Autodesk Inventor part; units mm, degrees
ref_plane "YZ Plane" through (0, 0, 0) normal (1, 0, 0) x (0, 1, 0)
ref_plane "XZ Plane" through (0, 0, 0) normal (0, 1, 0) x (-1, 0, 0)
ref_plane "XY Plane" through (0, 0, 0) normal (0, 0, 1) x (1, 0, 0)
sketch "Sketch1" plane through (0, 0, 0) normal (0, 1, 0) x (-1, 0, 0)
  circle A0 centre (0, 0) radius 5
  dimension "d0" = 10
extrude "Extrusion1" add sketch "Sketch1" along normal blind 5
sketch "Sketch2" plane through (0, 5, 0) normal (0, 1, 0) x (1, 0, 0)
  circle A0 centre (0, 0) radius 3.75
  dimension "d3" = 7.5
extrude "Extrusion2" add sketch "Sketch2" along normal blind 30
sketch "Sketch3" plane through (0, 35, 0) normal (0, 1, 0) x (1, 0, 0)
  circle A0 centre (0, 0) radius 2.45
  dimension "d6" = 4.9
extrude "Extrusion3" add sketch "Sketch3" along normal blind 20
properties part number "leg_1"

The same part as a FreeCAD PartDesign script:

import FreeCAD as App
import Part
import Sketcher

doc = App.newDocument("Part")
params = doc.addObject("Spreadsheet::Sheet", "Params")
for row, (alias, value) in enumerate([
    ("sketch1_diameter", "10 mm"),
    ("pad1_length", "5 mm"),
    ("sketch2_diameter", "7.5 mm"),
    ("pad2_length", "30 mm"),
    ("sketch3_diameter", "4.9 mm"),
    ("pad3_length", "20 mm"),
], start=1):
    params.set(f"A{row}", alias)
    params.set(f"B{row}", "=" + value)
    params.setAlias(f"B{row}", alias)

body = doc.addObject("PartDesign::Body", "Body")

sketch1 = body.newObject("Sketcher::SketchObject", "Sketch")
sketch1.AttachmentSupport = (doc.getObject("XZ_Plane"), [""])
sketch1.MapMode = "FlatFace"
sketch1.addGeometry(Part.Circle(App.Vector(0, 0, 0), App.Vector(0, 0, 1), 5), False)
sketch1.addConstraint(Sketcher.Constraint("Coincident", 0, 3, -1, 1))
sketch1.addConstraint(Sketcher.Constraint("Diameter", 0, 10.0))
sketch1.setExpression("Constraints[1]", "Params.sketch1_diameter")
pad1 = body.newObject("PartDesign::Pad", "Pad")
pad1.Profile = sketch1
pad1.setExpression("Length", "Params.pad1_length")
pad1.Reversed = True

sketch2 = body.newObject("Sketcher::SketchObject", "Sketch001")
sketch2.AttachmentSupport = (doc.getObject("XZ_Plane"), [""])
sketch2.MapMode = "FlatFace"
sketch2.AttachmentOffset = App.Placement(App.Vector(0, 0, -5), App.Rotation())
sketch2.addGeometry(Part.Circle(App.Vector(0, 0, 0), App.Vector(0, 0, 1), 3.8), False)
sketch2.addConstraint(Sketcher.Constraint("Coincident", 0, 3, -1, 1))
sketch2.addConstraint(Sketcher.Constraint("Diameter", 0, 7.5))
sketch2.setExpression("Constraints[1]", "Params.sketch2_diameter")
pad2 = body.newObject("PartDesign::Pad", "Pad001")
pad2.Profile = sketch2
pad2.setExpression("Length", "Params.pad2_length")
pad2.Reversed = True

sketch3 = body.newObject("Sketcher::SketchObject", "Sketch002")
sketch3.AttachmentSupport = (doc.getObject("XZ_Plane"), [""])
sketch3.MapMode = "FlatFace"
sketch3.AttachmentOffset = App.Placement(App.Vector(0, 0, -35), App.Rotation())
sketch3.addGeometry(Part.Circle(App.Vector(0, 0, 0), App.Vector(0, 0, 1), 2.5), False)
sketch3.addConstraint(Sketcher.Constraint("Coincident", 0, 3, -1, 1))
sketch3.addConstraint(Sketcher.Constraint("Diameter", 0, 4.9))
sketch3.setExpression("Constraints[1]", "Params.sketch3_diameter")
pad3 = body.newObject("PartDesign::Pad", "Pad002")
pad3.Profile = sketch3
pad3.setExpression("Length", "Params.pad3_length")
pad3.Reversed = True

doc.recompute()
